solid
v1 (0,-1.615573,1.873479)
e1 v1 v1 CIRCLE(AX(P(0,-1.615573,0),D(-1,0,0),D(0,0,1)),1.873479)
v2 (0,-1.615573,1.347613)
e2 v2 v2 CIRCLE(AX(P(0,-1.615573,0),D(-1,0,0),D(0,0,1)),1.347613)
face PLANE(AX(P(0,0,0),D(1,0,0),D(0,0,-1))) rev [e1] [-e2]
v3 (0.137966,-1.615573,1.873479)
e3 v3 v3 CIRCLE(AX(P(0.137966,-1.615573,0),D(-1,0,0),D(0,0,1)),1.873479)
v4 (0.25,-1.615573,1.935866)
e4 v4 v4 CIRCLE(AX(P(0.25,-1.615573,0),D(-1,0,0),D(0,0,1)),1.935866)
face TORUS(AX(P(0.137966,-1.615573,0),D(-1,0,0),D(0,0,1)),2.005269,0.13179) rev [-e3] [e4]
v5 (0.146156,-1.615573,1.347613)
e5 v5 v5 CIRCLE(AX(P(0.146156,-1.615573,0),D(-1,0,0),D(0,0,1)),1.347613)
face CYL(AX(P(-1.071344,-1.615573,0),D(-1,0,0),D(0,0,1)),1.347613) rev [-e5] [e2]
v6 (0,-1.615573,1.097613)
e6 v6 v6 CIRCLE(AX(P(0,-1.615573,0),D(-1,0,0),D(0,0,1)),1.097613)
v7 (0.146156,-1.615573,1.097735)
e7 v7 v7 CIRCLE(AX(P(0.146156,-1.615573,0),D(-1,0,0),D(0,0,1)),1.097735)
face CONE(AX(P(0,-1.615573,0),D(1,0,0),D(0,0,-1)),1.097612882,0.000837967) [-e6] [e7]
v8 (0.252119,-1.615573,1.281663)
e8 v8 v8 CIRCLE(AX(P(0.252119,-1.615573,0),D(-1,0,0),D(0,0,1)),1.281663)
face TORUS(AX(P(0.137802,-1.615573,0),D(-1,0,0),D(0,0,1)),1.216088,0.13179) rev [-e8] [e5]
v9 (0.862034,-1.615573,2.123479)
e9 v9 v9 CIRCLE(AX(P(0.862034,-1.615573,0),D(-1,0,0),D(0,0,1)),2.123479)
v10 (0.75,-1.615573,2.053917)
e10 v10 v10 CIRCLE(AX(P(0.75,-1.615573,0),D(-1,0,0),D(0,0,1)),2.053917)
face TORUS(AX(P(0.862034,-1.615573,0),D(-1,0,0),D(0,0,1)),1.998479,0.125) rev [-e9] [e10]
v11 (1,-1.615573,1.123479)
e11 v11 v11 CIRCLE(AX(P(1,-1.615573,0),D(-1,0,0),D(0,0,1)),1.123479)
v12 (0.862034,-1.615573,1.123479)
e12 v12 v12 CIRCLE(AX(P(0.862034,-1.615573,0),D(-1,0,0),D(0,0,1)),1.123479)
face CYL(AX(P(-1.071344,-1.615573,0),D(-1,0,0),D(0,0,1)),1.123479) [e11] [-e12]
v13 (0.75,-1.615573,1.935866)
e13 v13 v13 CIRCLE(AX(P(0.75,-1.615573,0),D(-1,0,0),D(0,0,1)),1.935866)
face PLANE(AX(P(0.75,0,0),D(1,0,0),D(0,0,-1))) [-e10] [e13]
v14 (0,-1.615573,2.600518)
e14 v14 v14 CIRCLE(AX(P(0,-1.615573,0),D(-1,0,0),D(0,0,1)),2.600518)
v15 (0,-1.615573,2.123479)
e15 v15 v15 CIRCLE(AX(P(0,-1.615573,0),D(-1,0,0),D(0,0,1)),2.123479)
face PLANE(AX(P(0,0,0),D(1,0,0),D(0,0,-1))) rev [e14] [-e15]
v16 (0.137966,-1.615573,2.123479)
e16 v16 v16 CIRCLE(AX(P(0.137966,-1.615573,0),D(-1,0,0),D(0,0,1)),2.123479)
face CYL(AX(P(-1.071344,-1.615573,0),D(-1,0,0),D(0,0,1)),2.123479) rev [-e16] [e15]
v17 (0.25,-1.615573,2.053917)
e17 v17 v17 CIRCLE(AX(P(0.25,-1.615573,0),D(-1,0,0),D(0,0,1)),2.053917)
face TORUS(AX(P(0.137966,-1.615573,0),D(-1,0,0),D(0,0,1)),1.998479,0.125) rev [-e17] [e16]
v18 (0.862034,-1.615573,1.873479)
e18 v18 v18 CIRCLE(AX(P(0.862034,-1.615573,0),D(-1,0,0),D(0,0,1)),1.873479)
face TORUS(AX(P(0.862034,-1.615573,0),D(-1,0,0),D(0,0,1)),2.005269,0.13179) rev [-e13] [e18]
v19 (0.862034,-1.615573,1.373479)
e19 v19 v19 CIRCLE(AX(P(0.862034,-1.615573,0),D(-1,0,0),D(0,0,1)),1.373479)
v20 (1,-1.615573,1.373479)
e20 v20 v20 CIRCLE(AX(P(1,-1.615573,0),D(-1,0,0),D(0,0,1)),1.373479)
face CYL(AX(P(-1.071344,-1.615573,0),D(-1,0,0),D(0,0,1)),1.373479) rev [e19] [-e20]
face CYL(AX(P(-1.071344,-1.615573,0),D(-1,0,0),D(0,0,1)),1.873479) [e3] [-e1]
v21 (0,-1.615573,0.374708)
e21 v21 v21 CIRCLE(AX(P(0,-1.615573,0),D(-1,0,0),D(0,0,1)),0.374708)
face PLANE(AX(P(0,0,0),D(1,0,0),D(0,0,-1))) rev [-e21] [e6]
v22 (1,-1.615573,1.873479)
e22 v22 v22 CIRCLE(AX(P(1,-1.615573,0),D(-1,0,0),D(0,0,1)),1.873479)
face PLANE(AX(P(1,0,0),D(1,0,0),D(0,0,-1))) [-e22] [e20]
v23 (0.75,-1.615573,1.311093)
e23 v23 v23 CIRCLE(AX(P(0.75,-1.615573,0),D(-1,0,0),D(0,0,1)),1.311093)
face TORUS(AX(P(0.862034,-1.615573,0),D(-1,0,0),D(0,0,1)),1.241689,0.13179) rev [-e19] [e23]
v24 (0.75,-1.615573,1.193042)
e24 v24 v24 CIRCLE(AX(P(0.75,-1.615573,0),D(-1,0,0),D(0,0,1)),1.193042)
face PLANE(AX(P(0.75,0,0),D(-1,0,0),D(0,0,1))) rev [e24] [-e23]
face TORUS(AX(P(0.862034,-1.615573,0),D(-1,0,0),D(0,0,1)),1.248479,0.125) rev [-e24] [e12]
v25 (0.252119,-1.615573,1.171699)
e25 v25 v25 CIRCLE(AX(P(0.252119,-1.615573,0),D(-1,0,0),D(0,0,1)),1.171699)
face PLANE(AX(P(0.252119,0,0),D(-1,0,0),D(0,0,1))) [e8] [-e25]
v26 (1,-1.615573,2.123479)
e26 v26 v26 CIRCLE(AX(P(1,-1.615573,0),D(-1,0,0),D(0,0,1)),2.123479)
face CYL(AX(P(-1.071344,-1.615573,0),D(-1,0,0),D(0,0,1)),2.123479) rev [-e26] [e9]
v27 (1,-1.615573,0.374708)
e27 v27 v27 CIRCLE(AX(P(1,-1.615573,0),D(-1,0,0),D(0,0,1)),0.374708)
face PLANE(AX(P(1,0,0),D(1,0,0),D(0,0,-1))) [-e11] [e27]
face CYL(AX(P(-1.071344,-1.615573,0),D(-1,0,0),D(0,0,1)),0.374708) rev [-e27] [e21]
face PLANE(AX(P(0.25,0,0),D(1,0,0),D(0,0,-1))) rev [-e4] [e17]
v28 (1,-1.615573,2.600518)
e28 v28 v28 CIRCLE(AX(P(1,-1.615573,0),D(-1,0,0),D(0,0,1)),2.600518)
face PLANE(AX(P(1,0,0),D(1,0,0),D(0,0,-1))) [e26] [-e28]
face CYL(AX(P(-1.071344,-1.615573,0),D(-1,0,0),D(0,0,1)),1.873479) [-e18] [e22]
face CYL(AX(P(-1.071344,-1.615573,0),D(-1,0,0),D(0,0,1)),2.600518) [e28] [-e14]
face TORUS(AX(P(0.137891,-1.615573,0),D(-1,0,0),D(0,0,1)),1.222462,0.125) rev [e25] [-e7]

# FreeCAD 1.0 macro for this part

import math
import FreeCAD as App
import Part
import Sketcher

V = App.Vector
Q = App.Units.Quantity

doc = App.newDocument("Part")
params = doc.addObject("Spreadsheet::Sheet", "Params")
for row, (alias, value) in enumerate([
    ("sketch1_width", "1 mm"),
    ("sketch1_height", "0.5 mm"),
    ("revolution_angle", "360 deg"),
], start=1):
    params.set(f"A{row}", alias)
    params.set(f"B{row}", "=" + value)
    params.setAlias(f"B{row}", alias)

body = doc.addObject("PartDesign::Body", "Body")

# Sketch on XY plane
sketch1 = doc.addObject("Sketcher::SketchObject", "Sketch")
body.addObject(sketch1)
sketch1.AttachmentSupport = (doc.XY_Plane, [""])
sketch1.MapMode = "FlatFace"
sketch1.addGeometry(Part.LineSegment(V(0, -0.267961, 0), V(0.146156, -0.267961, 0)), False)
sketch1.addGeometry(Part.ArcOfCircle(Part.Circle(V(0.137802, -0.399485, 0), V(0, 0, 1), 0.13179), math.radians(29.839636), math.radians(86.36571)), False)
sketch1.addGeometry(Part.LineSegment(V(0.252119, -0.33391, 0), V(0.252119, -0.443875, 0)), False)
sketch1.addGeometry(Part.ArcOfCircle(Part.Circle(V(0.137891, -0.393112, 0), V(0, 0, 1), 0.125), math.radians(-86.208958), math.radians(-23.960419)), False)
sketch1.addGeometry(Part.LineSegment(V(0.146156, -0.517838, 0), V(0, -0.517961, 0)), False)
sketch1.addGeometry(Part.LineSegment(V(0, -0.517961, 0), V(0, -1.240865, 0)), False)
sketch1.addGeometry(Part.LineSegment(V(0, -1.240865, 0), V(1, -1.240865, 0)), False)
sketch1.addGeometry(Part.LineSegment(V(1, -1.240865, 0), V(1, -0.492094, 0)), False)
sketch1.addGeometry(Part.LineSegment(V(1, -0.492094, 0), V(0.862034, -0.492094, 0)), False)
sketch1.addGeometry(Part.ArcOfCircle(Part.Circle(V(0.862034, -0.367094, 0), V(0, 0, 1), 0.125), math.radians(-153.672698), math.radians(-90)), False)
sketch1.addGeometry(Part.LineSegment(V(0.75, -0.422531, 0), V(0.75, -0.30448, 0)), False)
sketch1.addGeometry(Part.ArcOfCircle(Part.Circle(V(0.862034, -0.373884, 0), V(0, 0, 1), 0.13179), math.radians(90), math.radians(148.222365)), False)
sketch1.addGeometry(Part.LineSegment(V(0.862034, -0.242094, 0), V(1, -0.242094, 0)), False)
sketch1.addGeometry(Part.LineSegment(V(1, -0.242094, 0), V(1, 0.257906, 0)), False)
sketch1.addGeometry(Part.LineSegment(V(1, 0.257906, 0), V(0.862034, 0.257906, 0)), False)
sketch1.addGeometry(Part.ArcOfCircle(Part.Circle(V(0.862034, 0.389696, 0), V(0, 0, 1), 0.13179), math.radians(-148.222366), math.radians(-89.999999)), False)
sketch1.addGeometry(Part.LineSegment(V(0.75, 0.320292, 0), V(0.75, 0.438343, 0)), False)
sketch1.addGeometry(Part.ArcOfCircle(Part.Circle(V(0.862034, 0.382906, 0), V(0, 0, 1), 0.125), math.radians(90), math.radians(153.672699)), False)
sketch1.addGeometry(Part.LineSegment(V(0.862034, 0.507906, 0), V(1, 0.507906, 0)), False)
sketch1.addGeometry(Part.LineSegment(V(1, 0.507906, 0), V(1, 0.984944, 0)), False)
sketch1.addGeometry(Part.LineSegment(V(1, 0.984944, 0), V(0, 0.984944, 0)), False)
sketch1.addGeometry(Part.LineSegment(V(0, 0.984944, 0), V(0, 0.507906, 0)), False)
sketch1.addGeometry(Part.LineSegment(V(0, 0.507906, 0), V(0.137966, 0.507906, 0)), False)
sketch1.addGeometry(Part.ArcOfCircle(Part.Circle(V(0.137966, 0.382906, 0), V(0, 0, 1), 0.125), math.radians(26.327301), math.radians(90)), False)
sketch1.addGeometry(Part.LineSegment(V(0.25, 0.438343, 0), V(0.25, 0.320292, 0)), False)
sketch1.addGeometry(Part.ArcOfCircle(Part.Circle(V(0.137966, 0.389696, 0), V(0, 0, 1), 0.13179), math.radians(-90.000001), math.radians(-31.777634)), False)
sketch1.addGeometry(Part.LineSegment(V(0.137966, 0.257906, 0), V(0, 0.257906, 0)), False)
sketch1.addGeometry(Part.LineSegment(V(0, 0.257906, 0), V(0, -0.267961, 0)), False)
sketch1.addGeometry(Part.LineSegment(V(0, -1.615573, 0), V(1, -1.615573, 0)), True)  # axis
sketch1.addConstraint(Sketcher.Constraint("Coincident", 0, 2, 1, 2))
sketch1.addConstraint(Sketcher.Constraint("Coincident", 1, 1, 2, 1))
sketch1.addConstraint(Sketcher.Constraint("Coincident", 2, 2, 3, 2))
sketch1.addConstraint(Sketcher.Constraint("Coincident", 3, 1, 4, 1))
sketch1.addConstraint(Sketcher.Constraint("Coincident", 4, 2, 5, 1))
sketch1.addConstraint(Sketcher.Constraint("Coincident", 5, 2, 6, 1))
sketch1.addConstraint(Sketcher.Constraint("Coincident", 6, 2, 7, 1))
sketch1.addConstraint(Sketcher.Constraint("Coincident", 7, 2, 8, 1))
sketch1.addConstraint(Sketcher.Constraint("Tangent", 8, 2, 9, 2))
sketch1.addConstraint(Sketcher.Constraint("Coincident", 9, 1, 10, 1))
sketch1.addConstraint(Sketcher.Constraint("Coincident", 10, 2, 11, 2))
sketch1.addConstraint(Sketcher.Constraint("Tangent", 11, 1, 12, 1))
sketch1.addConstraint(Sketcher.Constraint("Coincident", 12, 2, 13, 1))
sketch1.addConstraint(Sketcher.Constraint("Coincident", 13, 2, 14, 1))
sketch1.addConstraint(Sketcher.Constraint("Tangent", 14, 2, 15, 2))
sketch1.addConstraint(Sketcher.Constraint("Coincident", 15, 1, 16, 1))
sketch1.addConstraint(Sketcher.Constraint("Coincident", 16, 2, 17, 2))
sketch1.addConstraint(Sketcher.Constraint("Tangent", 17, 1, 18, 1))
sketch1.addConstraint(Sketcher.Constraint("Coincident", 18, 2, 19, 1))
sketch1.addConstraint(Sketcher.Constraint("Coincident", 19, 2, 20, 1))
sketch1.addConstraint(Sketcher.Constraint("Coincident", 20, 2, 21, 1))
sketch1.addConstraint(Sketcher.Constraint("Coincident", 21, 2, 22, 1))
sketch1.addConstraint(Sketcher.Constraint("Tangent", 22, 2, 23, 2))
sketch1.addConstraint(Sketcher.Constraint("Coincident", 23, 1, 24, 1))
sketch1.addConstraint(Sketcher.Constraint("Coincident", 24, 2, 25, 2))
sketch1.addConstraint(Sketcher.Constraint("Tangent", 25, 1, 26, 1))
sketch1.addConstraint(Sketcher.Constraint("Coincident", 26, 2, 27, 1))
sketch1.addConstraint(Sketcher.Constraint("Coincident", 27, 2, 0, 1))
sketch1.addConstraint(Sketcher.Constraint("Horizontal", 0))
sketch1.addConstraint(Sketcher.Constraint("Vertical", 2))
sketch1.addConstraint(Sketcher.Constraint("Vertical", 5))
sketch1.addConstraint(Sketcher.Constraint("Horizontal", 6))
sketch1.addConstraint(Sketcher.Constraint("Vertical", 7))
sketch1.addConstraint(Sketcher.Constraint("Horizontal", 8))
sketch1.addConstraint(Sketcher.Constraint("Vertical", 10))
sketch1.addConstraint(Sketcher.Constraint("Horizontal", 12))
sketch1.addConstraint(Sketcher.Constraint("Vertical", 13))
sketch1.addConstraint(Sketcher.Constraint("Horizontal", 14))
sketch1.addConstraint(Sketcher.Constraint("Vertical", 16))
sketch1.addConstraint(Sketcher.Constraint("Horizontal", 18))
sketch1.addConstraint(Sketcher.Constraint("Vertical", 19))
sketch1.addConstraint(Sketcher.Constraint("Horizontal", 20))
sketch1.addConstraint(Sketcher.Constraint("Vertical", 21))
sketch1.addConstraint(Sketcher.Constraint("Horizontal", 22))
sketch1.addConstraint(Sketcher.Constraint("Vertical", 24))
sketch1.addConstraint(Sketcher.Constraint("Horizontal", 26))
sketch1.addConstraint(Sketcher.Constraint("Vertical", 27))
sketch1.addConstraint(Sketcher.Constraint("Horizontal", 28))
sketch1.addConstraint(Sketcher.Constraint("Equal", 3, 9))
sketch1.addConstraint(Sketcher.Constraint("Equal", 1, 11))
sketch1.addConstraint(Sketcher.Constraint("Equal", 11, 15))
sketch1.addConstraint(Sketcher.Constraint("Equal", 9, 17))
sketch1.addConstraint(Sketcher.Constraint("Equal", 17, 23))
sketch1.addConstraint(Sketcher.Constraint("Equal", 15, 25))
sketch1.addConstraint(Sketcher.Constraint("PointOnObject", 4, 2, -2))
sketch1.addConstraint(Sketcher.Constraint("PointOnObject", 20, 2, -2))
sketch1.addConstraint(Sketcher.Constraint("PointOnObject", 26, 2, -2))
sketch1.addConstraint(Sketcher.Constraint("PointOnObject", 28, 1, -2))
sketch1.addConstraint(Sketcher.Constraint("Horizontal", 17, 3, 23, 3))
sketch1.addConstraint(Sketcher.Constraint("Horizontal", 15, 3, 25, 3))
sketch1.addConstraint(Sketcher.Constraint("Horizontal", 16, 2, 23, 1))
sketch1.addConstraint(Sketcher.Constraint("Horizontal", 15, 1, 24, 2))
sketch1.addConstraint(Sketcher.Constraint("Vertical", 9, 3, 11, 3))
sketch1.addConstraint(Sketcher.Constraint("Vertical", 11, 3, 15, 3))
sketch1.addConstraint(Sketcher.Constraint("Vertical", 15, 3, 17, 3))
sketch1.addConstraint(Sketcher.Constraint("Vertical", 0, 2, 3, 1))
sketch1.addConstraint(Sketcher.Constraint("Vertical", 7, 2, 12, 2))
sketch1.addConstraint(Sketcher.Constraint("Vertical", 10, 2, 15, 1))
sketch1.addConstraint(Sketcher.Constraint("Vertical", 13, 2, 18, 2))
sketch1.addConstraint(Sketcher.Constraint("Vertical", 19, 2, 28, 2))
sketch1.addConstraint(Sketcher.Constraint("Equal", 18, 22))
sketch1.addConstraint(Sketcher.Constraint("Equal", 10, 16))
sketch1.addConstraint(Sketcher.Constraint("DistanceX", 6, 1, 6, 2, Q("1 mm")))
sketch1.addConstraint(Sketcher.Constraint("DistanceY", 13, 1, 13, 2, Q("0.5 mm")))
sketch1.addConstraint(Sketcher.Constraint("Radius", 3, Q("0.125 mm")))
sketch1.addConstraint(Sketcher.Constraint("DistanceX", 23, 1, 16, 2, Q("0.5 mm")))
sketch1.addConstraint(Sketcher.Constraint("Radius", 1, Q("0.13179 mm")))
sketch1.addConstraint(Sketcher.Constraint("DistanceY", 9, 3, 17, 3, Q("0.75 mm")))
sketch1.addConstraint(Sketcher.Constraint("DistanceY", 4, 2, 0, 2, Q("0.25 mm")))
sketch1.addConstraint(Sketcher.Constraint("DistanceY", 7, 1, 7, 2, Q("0.748771 mm")))
sketch1.addConstraint(Sketcher.Constraint("DistanceY", 10, 1, 10, 2, Q("0.118051 mm")))
sketch1.addConstraint(Sketcher.Constraint("DistanceY", 19, 1, 19, 2, Q("0.477038 mm")))
sketch1.addConstraint(Sketcher.Constraint("DistanceX", -1, 1, 1, 3, Q("0.137802 mm")))
sketch1.addConstraint(Sketcher.Constraint("DistanceY", 1, 3, 11, 3, Q("0.025601 mm")))
sketch1.addConstraint(Sketcher.Constraint("DistanceY", 3, 3, 1, 1, Q("0.059201 mm")))
sketch1.addConstraint(Sketcher.Constraint("DistanceY", 28, 1, 2, 2, Q("1.171699 mm")))
sketch1.addConstraint(Sketcher.Constraint("DistanceX", 0, 1, 0, 2, Q("0.146156 mm")))
sketch1.addConstraint(Sketcher.Constraint("DistanceY", 2, 2, 2, 1, Q("0.109965 mm")))
sketch1.addConstraint(Sketcher.Constraint("DistanceX", -1, 1, 3, 3, Q("0.137891 mm")))
sketch1.addConstraint(Sketcher.Constraint("DistanceY", 3, 3, -1, 1, Q("0.393112 mm")))
sketch1.setExpression("Constraints[72]", "Params.sketch1_width")
sketch1.setExpression("Constraints[73]", "Params.sketch1_height")
revolution = doc.addObject("PartDesign::Revolution", "Revolution")
body.addObject(revolution)
revolution.Profile = sketch1
revolution.ReferenceAxis = (sketch1, ["Axis0"])
revolution.setExpression("Angle", "Params.revolution_angle")

doc.recompute()
